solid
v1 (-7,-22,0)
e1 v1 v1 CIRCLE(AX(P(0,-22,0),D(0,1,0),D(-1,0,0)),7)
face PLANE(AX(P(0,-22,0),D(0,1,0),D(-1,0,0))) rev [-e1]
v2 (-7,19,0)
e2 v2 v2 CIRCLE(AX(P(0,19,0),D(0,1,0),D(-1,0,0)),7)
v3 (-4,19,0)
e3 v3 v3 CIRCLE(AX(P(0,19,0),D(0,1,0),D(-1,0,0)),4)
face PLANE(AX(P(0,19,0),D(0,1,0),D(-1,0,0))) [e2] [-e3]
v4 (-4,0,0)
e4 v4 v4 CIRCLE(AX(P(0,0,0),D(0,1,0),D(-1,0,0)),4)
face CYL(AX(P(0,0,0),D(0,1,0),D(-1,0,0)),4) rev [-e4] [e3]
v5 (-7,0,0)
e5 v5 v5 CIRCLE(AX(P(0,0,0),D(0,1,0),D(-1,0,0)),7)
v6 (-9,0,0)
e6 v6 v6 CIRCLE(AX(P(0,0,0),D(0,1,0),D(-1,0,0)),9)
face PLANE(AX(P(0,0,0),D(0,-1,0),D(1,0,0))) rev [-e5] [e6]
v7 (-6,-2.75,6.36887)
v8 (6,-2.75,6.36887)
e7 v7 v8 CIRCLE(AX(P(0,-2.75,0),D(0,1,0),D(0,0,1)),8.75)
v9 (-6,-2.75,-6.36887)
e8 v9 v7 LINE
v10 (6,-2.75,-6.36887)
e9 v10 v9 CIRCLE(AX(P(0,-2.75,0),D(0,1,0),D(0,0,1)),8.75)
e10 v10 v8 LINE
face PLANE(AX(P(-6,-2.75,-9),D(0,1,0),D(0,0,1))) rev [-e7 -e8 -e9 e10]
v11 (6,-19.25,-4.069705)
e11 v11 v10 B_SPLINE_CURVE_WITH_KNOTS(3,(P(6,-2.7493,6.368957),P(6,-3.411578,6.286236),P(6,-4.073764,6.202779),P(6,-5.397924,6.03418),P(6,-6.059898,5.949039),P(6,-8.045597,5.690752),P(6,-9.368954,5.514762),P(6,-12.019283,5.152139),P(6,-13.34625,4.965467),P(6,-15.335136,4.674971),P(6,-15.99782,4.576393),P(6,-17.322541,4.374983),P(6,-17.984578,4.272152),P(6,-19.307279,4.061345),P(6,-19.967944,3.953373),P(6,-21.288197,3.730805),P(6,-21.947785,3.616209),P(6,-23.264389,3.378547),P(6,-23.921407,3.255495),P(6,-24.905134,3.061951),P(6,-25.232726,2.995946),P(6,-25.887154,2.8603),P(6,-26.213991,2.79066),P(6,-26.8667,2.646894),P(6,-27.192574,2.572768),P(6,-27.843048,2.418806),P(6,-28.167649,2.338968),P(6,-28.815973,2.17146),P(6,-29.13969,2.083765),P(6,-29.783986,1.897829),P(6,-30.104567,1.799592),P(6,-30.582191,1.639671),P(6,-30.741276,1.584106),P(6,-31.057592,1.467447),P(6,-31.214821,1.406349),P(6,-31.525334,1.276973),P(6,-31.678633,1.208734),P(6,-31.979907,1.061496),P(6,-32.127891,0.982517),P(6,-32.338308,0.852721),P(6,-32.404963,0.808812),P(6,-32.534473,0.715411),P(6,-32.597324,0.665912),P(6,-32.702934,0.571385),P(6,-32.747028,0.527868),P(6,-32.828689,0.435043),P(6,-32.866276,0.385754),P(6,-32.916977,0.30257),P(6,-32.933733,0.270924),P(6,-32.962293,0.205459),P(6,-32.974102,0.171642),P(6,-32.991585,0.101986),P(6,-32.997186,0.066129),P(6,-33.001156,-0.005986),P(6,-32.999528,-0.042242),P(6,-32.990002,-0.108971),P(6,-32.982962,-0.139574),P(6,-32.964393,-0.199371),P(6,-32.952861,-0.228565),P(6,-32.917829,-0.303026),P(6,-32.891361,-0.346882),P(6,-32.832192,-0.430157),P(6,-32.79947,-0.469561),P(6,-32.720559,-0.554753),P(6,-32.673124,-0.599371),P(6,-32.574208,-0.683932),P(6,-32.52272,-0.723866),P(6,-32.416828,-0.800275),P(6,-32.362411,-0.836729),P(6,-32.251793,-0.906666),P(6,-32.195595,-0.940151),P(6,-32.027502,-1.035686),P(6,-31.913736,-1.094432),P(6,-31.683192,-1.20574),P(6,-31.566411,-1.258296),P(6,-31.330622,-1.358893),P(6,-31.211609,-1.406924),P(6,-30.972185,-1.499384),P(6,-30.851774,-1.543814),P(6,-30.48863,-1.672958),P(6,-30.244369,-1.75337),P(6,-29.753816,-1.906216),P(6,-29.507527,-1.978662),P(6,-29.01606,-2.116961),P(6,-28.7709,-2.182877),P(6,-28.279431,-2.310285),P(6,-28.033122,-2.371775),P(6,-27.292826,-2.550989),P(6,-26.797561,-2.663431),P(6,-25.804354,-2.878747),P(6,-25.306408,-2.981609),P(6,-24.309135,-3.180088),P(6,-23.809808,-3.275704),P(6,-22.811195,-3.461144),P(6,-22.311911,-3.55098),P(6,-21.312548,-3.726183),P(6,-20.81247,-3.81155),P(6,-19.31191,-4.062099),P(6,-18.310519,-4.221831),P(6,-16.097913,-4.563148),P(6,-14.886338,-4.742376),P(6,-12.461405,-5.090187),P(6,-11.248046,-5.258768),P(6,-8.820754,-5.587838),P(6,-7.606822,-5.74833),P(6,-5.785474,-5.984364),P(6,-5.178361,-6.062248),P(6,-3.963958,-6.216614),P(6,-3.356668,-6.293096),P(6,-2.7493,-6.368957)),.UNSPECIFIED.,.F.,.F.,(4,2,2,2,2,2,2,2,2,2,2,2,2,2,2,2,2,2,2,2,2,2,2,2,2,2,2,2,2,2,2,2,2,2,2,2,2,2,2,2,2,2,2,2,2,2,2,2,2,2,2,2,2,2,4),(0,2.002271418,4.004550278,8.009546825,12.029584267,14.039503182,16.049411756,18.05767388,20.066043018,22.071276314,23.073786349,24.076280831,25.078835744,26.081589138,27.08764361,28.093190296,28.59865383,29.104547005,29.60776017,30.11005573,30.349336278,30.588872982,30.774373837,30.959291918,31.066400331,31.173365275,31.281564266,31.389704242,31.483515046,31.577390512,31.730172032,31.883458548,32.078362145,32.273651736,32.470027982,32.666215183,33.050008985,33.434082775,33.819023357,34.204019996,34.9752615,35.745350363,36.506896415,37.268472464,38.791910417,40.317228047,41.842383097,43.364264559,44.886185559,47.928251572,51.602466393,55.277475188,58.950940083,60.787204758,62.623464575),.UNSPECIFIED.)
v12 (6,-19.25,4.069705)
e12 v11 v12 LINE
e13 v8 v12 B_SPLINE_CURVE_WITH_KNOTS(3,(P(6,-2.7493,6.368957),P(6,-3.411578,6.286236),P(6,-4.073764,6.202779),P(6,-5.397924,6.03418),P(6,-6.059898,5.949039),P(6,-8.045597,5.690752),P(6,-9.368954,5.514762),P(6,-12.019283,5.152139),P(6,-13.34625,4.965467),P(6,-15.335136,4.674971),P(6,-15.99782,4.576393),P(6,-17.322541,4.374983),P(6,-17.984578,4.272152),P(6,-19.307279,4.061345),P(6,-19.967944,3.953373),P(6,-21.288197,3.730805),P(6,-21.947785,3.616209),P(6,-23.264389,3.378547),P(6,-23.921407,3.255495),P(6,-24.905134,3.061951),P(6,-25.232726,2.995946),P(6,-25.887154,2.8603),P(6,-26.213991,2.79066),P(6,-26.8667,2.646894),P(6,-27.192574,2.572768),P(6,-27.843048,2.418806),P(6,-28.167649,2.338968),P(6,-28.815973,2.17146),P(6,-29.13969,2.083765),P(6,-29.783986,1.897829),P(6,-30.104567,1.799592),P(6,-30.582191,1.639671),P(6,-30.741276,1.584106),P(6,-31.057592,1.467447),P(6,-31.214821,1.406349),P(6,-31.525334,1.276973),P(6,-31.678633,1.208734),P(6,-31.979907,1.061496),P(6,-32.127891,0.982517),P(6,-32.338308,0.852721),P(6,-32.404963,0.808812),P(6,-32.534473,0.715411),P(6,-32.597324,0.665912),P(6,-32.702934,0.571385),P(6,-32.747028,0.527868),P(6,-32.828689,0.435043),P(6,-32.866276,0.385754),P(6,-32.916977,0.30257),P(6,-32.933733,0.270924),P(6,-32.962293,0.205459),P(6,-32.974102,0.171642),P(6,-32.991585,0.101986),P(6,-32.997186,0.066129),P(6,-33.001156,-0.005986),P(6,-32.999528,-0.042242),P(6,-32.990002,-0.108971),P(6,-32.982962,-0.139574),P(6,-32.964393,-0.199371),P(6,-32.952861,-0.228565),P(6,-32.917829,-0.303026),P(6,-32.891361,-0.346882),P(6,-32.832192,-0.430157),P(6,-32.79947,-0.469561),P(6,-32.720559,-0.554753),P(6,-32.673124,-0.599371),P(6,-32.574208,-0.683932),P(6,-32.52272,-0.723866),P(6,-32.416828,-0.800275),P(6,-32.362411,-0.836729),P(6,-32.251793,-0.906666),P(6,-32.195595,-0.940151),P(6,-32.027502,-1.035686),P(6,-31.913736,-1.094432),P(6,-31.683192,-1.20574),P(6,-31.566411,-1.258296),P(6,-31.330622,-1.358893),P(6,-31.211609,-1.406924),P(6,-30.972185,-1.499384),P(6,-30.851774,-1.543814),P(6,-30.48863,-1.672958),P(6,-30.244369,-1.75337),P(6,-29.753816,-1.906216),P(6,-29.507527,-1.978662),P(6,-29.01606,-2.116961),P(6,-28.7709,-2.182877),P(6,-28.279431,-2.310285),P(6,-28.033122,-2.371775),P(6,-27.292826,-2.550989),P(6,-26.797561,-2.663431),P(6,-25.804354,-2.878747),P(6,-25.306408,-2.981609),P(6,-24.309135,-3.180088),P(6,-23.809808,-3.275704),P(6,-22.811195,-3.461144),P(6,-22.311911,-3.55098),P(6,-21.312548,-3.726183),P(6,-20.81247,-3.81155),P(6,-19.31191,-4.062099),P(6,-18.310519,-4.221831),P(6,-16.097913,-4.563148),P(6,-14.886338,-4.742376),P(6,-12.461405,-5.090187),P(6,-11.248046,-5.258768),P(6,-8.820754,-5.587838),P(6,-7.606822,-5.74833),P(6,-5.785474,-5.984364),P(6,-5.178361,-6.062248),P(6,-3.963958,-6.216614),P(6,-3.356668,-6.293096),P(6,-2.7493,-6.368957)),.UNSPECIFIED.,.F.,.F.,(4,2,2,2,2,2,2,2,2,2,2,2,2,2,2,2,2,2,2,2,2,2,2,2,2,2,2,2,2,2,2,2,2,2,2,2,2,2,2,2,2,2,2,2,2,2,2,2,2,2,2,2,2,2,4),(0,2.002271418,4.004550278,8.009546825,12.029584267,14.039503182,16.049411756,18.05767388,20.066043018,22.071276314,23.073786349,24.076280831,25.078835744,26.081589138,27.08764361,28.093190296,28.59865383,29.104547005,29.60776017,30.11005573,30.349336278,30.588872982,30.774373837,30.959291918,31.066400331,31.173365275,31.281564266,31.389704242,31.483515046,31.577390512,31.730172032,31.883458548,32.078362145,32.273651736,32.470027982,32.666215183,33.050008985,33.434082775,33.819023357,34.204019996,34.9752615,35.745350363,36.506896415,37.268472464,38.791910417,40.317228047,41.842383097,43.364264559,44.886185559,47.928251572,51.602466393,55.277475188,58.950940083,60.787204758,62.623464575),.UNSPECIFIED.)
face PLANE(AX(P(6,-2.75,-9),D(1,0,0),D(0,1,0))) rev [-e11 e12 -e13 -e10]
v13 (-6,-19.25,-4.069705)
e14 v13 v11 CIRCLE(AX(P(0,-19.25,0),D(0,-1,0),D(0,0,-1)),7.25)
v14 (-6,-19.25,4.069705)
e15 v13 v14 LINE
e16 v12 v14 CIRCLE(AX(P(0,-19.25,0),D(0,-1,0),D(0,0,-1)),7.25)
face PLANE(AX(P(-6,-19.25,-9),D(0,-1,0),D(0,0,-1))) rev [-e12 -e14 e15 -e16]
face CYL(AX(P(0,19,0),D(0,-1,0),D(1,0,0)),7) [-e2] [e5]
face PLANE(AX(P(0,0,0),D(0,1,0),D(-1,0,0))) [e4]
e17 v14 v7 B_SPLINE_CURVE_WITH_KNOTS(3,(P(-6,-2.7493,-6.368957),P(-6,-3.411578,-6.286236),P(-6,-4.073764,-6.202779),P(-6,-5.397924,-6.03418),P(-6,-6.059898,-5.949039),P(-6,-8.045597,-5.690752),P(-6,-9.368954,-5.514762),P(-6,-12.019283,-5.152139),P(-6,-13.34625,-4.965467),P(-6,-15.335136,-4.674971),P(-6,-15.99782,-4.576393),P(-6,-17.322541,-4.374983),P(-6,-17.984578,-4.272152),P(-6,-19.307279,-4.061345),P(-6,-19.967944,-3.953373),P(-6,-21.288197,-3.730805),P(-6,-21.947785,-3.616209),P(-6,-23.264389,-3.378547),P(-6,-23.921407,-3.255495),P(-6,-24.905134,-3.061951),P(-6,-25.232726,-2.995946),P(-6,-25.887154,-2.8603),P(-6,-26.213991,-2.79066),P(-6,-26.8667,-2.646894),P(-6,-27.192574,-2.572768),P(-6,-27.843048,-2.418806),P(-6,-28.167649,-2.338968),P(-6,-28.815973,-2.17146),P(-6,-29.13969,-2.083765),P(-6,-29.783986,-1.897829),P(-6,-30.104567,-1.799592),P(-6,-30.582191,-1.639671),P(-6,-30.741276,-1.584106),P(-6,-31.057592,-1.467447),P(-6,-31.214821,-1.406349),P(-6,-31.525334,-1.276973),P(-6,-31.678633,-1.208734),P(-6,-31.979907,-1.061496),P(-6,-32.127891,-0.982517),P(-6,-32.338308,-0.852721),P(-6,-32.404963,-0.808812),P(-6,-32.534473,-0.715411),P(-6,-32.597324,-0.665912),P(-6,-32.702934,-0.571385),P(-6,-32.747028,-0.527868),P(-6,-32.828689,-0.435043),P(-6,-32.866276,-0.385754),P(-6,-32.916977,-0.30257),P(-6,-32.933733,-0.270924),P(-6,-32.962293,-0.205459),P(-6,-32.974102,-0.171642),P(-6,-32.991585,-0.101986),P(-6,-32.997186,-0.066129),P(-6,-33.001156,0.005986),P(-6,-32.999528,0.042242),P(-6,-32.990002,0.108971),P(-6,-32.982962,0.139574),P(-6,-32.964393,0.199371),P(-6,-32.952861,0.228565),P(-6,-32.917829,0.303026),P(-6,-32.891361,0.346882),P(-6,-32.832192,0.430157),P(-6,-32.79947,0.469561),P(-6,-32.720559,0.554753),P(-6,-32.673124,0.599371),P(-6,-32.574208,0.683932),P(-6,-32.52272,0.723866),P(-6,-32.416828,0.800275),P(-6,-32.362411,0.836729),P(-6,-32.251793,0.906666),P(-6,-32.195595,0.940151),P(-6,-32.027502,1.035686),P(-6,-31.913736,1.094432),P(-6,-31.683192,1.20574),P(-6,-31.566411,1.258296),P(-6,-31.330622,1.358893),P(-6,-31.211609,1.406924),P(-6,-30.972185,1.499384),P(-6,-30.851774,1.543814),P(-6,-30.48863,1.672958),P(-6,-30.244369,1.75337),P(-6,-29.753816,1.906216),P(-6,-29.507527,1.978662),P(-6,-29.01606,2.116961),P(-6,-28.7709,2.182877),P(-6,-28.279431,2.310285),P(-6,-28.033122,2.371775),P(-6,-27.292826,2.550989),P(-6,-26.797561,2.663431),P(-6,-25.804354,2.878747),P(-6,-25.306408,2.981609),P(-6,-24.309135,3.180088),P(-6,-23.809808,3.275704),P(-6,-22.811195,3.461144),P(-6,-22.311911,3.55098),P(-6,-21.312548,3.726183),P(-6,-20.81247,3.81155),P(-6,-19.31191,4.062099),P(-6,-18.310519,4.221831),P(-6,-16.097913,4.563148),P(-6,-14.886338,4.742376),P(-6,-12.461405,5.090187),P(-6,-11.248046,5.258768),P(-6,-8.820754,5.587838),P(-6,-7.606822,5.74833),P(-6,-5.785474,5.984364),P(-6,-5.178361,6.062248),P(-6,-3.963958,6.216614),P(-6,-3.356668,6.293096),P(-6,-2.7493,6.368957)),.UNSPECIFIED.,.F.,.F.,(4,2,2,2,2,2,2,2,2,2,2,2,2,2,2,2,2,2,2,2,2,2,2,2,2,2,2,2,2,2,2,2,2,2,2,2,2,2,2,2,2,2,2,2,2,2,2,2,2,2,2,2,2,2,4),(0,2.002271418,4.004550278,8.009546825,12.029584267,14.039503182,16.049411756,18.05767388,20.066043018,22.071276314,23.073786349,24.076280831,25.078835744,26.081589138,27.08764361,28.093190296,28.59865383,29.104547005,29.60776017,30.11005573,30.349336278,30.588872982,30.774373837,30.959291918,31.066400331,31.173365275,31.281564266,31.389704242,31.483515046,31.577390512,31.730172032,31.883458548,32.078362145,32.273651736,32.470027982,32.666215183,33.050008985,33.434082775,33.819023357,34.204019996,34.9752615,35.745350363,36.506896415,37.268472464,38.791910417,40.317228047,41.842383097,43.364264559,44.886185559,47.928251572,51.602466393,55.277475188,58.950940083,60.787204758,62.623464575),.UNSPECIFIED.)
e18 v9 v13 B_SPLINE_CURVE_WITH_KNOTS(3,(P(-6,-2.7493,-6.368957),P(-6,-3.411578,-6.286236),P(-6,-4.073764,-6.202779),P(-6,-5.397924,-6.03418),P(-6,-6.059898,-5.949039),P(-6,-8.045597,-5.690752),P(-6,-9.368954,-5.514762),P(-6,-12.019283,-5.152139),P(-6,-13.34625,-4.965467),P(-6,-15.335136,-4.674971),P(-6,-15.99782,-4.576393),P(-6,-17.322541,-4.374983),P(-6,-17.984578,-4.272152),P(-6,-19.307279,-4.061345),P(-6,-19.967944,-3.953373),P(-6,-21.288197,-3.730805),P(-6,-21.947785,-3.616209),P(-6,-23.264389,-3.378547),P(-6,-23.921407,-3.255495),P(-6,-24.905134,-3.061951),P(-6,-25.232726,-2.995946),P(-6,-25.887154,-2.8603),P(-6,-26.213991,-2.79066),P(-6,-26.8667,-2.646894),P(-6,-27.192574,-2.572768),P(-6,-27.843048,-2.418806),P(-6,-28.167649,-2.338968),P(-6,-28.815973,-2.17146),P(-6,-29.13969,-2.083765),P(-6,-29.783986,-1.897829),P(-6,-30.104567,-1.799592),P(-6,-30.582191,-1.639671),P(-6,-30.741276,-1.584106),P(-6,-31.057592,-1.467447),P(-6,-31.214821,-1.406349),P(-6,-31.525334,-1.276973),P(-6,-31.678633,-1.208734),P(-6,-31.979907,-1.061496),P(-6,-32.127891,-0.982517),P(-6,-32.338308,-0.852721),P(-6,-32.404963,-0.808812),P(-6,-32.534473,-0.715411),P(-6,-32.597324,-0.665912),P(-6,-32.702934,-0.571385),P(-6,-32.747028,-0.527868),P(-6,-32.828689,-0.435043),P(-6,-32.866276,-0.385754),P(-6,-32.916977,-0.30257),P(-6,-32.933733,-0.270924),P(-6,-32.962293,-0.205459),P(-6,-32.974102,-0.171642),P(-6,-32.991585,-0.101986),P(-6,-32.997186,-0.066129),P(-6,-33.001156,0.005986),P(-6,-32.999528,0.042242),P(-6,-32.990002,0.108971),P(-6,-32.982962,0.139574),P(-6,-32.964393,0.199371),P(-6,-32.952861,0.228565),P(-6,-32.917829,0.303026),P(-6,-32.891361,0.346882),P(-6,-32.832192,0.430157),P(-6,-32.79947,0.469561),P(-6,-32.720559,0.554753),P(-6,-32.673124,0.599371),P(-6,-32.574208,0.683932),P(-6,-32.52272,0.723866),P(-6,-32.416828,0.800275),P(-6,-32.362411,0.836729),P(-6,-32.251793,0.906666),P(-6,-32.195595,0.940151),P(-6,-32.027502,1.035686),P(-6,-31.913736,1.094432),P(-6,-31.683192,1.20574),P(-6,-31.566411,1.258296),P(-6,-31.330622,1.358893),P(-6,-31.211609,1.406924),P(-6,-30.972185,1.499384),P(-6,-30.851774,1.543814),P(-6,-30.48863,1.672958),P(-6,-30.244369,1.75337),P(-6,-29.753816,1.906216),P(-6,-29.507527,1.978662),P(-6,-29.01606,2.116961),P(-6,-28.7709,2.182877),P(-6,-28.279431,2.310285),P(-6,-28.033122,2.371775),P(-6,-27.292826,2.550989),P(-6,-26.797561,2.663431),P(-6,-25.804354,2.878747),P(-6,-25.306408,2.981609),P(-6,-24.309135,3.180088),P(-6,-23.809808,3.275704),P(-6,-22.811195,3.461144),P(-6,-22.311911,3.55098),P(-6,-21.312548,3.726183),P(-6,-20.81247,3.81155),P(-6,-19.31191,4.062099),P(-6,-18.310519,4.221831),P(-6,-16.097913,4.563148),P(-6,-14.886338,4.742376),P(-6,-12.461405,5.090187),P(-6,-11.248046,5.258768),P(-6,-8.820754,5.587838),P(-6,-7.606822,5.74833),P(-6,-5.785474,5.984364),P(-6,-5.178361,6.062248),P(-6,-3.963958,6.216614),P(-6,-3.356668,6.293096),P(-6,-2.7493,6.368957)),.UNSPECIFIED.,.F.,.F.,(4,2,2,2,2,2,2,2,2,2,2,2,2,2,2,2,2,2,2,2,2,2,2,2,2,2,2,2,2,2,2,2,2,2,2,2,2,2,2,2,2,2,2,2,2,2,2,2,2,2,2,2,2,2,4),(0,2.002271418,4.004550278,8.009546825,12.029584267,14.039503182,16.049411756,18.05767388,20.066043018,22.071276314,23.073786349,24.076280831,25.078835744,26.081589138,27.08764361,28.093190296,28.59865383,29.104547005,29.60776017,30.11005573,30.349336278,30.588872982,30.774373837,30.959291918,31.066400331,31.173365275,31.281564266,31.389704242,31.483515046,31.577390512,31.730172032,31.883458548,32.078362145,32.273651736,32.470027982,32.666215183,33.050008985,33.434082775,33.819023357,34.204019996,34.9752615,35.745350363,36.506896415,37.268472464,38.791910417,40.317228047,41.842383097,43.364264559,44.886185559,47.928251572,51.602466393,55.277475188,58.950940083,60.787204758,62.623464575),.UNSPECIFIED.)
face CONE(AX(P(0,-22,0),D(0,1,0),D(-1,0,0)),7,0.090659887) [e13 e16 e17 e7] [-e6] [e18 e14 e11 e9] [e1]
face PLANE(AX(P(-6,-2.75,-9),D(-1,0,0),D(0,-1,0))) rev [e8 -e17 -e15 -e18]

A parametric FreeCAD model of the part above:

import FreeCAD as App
import Part
import Sketcher

doc = App.newDocument("Part")
body = doc.addObject("PartDesign::Body", "Body")

sketch1 = body.newObject("Sketcher::SketchObject", "Sketch")
sketch1.AttachmentSupport = (doc.getObject("XY_Plane"), [""])
sketch1.MapMode = "FlatFace"
sketch1.addGeometry([
    Part.LineSegment(App.Vector(9, 0, 0), App.Vector(0, 0, 0)),
    Part.LineSegment(App.Vector(0, 0, 0), App.Vector(0, -22, 0)),
    Part.LineSegment(App.Vector(0, -22, 0), App.Vector(7, -22, 0)),
    Part.LineSegment(App.Vector(7, -22, 0), App.Vector(9, 0, 0)),
], False)
sketch1.addConstraint([
    Sketcher.Constraint("Coincident", 0, 2, 1, 1),
    Sketcher.Constraint("Coincident", 1, 2, 2, 1),
    Sketcher.Constraint("Coincident", 2, 2, 3, 1),
    Sketcher.Constraint("Coincident", 3, 2, 0, 1),
    Sketcher.Constraint("Horizontal", 0),
    Sketcher.Constraint("Vertical", 1),
    Sketcher.Constraint("Horizontal", 2),
    Sketcher.Constraint("Coincident", 0, 2, -1, 1),
    Sketcher.Constraint("DistanceX", 0, 2, 0, 1, 9.0),
    Sketcher.Constraint("DistanceX", 2, 1, 2, 2, 7.0),
    Sketcher.Constraint("DistanceY", 1, 2, 1, 1, 22.0),
])
revolution = body.newObject("PartDesign::Revolution", "Revolution")
revolution.Profile = sketch1
revolution.ReferenceAxis = (sketch1, ["V_Axis"])
revolution.Angle = 360

sketch2 = body.newObject("Sketcher::SketchObject", "Sketch001")
sketch2.AttachmentSupport = (doc.getObject("XZ_Plane"), [""])
sketch2.MapMode = "FlatFace"
sketch2.addGeometry(Part.Circle(App.Vector(0, 0, 0), App.Vector(0, 0, 1), 7), False)
sketch2.addConstraint([
    Sketcher.Constraint("Coincident", 0, 3, -1, 1),
    Sketcher.Constraint("Diameter", 0, 14.0),
])
pad1 = body.newObject("PartDesign::Pad", "Pad")
pad1.Profile = sketch2
pad1.Length = 19
pad1.Reversed = True

sketch3 = body.newObject("Sketcher::SketchObject", "Sketch002")
sketch3.AttachmentSupport = (doc.getObject("XZ_Plane"), [""])
sketch3.MapMode = "FlatFace"
sketch3.AttachmentOffset = App.Placement(App.Vector(0, 0, -19), App.Rotation())
sketch3.addGeometry(Part.Circle(App.Vector(0, 0, 0), App.Vector(0, 0, 1), 4), False)
sketch3.addConstraint([
    Sketcher.Constraint("Coincident", 0, 3, -1, 1),
    Sketcher.Constraint("Diameter", 0, 8.0),
])
pocket1 = body.newObject("PartDesign::Pocket", "Pocket")
pocket1.Profile = sketch3
pocket1.Length = 19
pocket1.Reversed = True

sketch4 = body.newObject("Sketcher::SketchObject", "Sketch003")
sketch4.AttachmentSupport = (doc.getObject("XY_Plane"), [""])
sketch4.MapMode = "FlatFace"
sketch4.addGeometry([
    Part.LineSegment(App.Vector(-6, -2.75, 0), App.Vector(-6, -19.25, 0)),
    Part.LineSegment(App.Vector(-6, -19.25, 0), App.Vector(6, -19.25, 0)),
    Part.LineSegment(App.Vector(6, -19.25, 0), App.Vector(6, -2.75, 0)),
    Part.LineSegment(App.Vector(6, -2.75, 0), App.Vector(-6, -2.75, 0)),
], False)
sketch4.addConstraint([
    Sketcher.Constraint("Coincident", 0, 2, 1, 1),
    Sketcher.Constraint("Coincident", 1, 2, 2, 1),
    Sketcher.Constraint("Coincident", 2, 2, 3, 1),
    Sketcher.Constraint("Coincident", 3, 2, 0, 1),
    Sketcher.Constraint("Vertical", 0),
    Sketcher.Constraint("Horizontal", 1),
    Sketcher.Constraint("Vertical", 2),
    Sketcher.Constraint("Horizontal", 3),
    Sketcher.Constraint("DistanceX", 1, 1, 1, 2, 12.0),
    Sketcher.Constraint("DistanceY", 0, 2, 0, 1, 16.5),
    Sketcher.Constraint("DistanceX", 0, 2, -1, 1, 6.0),
    Sketcher.Constraint("DistanceY", 0, 2, -1, 1, 19.25),
])
pocket2 = body.newObject("PartDesign::Pocket", "Pocket001")
pocket2.Profile = sketch4
pocket2.Type = "ThroughAll"
pocket2.Midplane = True

doc.recompute()
